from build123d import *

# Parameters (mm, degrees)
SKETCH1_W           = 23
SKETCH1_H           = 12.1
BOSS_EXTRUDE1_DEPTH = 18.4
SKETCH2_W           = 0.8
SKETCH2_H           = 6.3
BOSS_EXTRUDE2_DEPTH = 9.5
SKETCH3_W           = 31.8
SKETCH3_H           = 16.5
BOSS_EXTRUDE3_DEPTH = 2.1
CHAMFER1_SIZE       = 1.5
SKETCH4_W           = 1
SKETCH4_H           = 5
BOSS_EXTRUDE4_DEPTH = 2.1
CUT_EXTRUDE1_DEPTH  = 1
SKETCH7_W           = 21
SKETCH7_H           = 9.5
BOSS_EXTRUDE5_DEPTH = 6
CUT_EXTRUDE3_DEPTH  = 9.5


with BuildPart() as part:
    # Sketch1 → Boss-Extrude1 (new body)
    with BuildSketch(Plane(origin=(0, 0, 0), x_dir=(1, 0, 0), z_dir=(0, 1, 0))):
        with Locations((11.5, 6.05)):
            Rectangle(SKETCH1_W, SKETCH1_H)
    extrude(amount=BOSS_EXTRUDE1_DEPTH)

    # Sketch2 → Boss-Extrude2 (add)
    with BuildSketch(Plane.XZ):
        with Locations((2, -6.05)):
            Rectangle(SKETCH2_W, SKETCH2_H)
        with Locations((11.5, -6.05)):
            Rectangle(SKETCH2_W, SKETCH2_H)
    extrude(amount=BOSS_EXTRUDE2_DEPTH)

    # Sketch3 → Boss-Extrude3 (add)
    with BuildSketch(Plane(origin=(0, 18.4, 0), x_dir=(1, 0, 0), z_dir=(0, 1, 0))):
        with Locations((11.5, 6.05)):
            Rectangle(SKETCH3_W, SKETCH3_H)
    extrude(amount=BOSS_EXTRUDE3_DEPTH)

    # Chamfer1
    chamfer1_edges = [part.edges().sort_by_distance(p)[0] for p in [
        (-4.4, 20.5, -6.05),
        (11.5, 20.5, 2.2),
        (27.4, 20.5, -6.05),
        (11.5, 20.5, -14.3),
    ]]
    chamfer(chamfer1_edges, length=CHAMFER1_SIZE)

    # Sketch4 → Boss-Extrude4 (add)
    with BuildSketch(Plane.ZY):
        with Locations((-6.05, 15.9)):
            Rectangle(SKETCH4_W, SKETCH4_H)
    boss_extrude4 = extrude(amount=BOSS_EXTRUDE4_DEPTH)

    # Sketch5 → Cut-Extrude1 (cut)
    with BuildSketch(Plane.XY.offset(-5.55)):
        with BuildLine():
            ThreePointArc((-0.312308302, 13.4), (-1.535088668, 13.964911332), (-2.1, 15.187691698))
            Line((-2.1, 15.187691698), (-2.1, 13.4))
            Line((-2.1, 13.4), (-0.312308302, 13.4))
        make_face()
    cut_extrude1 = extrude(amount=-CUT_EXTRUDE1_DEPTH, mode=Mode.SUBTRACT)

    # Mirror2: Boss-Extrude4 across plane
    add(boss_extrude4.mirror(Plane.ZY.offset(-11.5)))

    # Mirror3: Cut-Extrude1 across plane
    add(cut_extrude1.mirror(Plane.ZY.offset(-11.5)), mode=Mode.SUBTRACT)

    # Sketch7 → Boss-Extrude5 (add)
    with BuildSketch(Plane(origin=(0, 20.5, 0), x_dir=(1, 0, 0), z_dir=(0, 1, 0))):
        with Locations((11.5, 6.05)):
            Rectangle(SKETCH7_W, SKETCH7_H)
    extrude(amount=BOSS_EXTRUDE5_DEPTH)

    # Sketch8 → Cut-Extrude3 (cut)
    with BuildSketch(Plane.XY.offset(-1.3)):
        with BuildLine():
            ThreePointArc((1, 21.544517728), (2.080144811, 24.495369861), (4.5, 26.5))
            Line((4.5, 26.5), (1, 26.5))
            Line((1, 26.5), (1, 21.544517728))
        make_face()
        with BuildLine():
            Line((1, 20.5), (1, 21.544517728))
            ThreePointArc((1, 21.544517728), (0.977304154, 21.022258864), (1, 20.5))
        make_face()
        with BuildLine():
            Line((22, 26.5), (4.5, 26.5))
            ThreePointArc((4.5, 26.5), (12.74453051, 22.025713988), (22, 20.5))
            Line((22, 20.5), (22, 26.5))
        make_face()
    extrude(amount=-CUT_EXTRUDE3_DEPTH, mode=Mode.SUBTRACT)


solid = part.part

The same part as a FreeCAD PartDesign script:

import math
import FreeCAD as App
import Part
import Sketcher
from FreeCAD import Vector
Q = App.Units.Quantity


def edges_at(feature, points):
    """Names of the edges that pass closest to the given points."""
    edges = feature.Shape.Edges
    near = lambda p: min(range(len(edges)), key=lambda i: edges[i].distToShape(Part.Vertex(*p))[0])
    return sorted({f"Edge{near(p) + 1}" for p in points})

doc = App.newDocument("Part")
body = doc.addObject("PartDesign::Body", "Body")

# Sketch on XZ plane
sketch1 = body.newObject("Sketcher::SketchObject", "Sketch")
sketch1.AttachmentSupport = (doc.getObject("XZ_Plane"), [""])
sketch1.MapMode = "FlatFace"
sketch1.addGeometry([
    Part.LineSegment(Vector(0, -12, 0), Vector(0, 0, 0)),
    Part.LineSegment(Vector(0, 0, 0), Vector(23, 0, 0)),
    Part.LineSegment(Vector(23, 0, 0), Vector(23, -12, 0)),
    Part.LineSegment(Vector(23, -12, 0), Vector(0, -12, 0)),
], False)
sketch1.addConstraint([
    Sketcher.Constraint("Coincident", 0, 2, 1, 1),
    Sketcher.Constraint("Coincident", 1, 2, 2, 1),
    Sketcher.Constraint("Coincident", 2, 2, 3, 1),
    Sketcher.Constraint("Coincident", 3, 2, 0, 1),
    Sketcher.Constraint("Vertical", 0),
    Sketcher.Constraint("Horizontal", 1),
    Sketcher.Constraint("Vertical", 2),
    Sketcher.Constraint("Horizontal", 3),
    Sketcher.Constraint("Coincident", 0, 2, -1, 1),
    Sketcher.Constraint("DistanceX", 1, 1, 1, 2, Q("23 mm")),
    Sketcher.Constraint("DistanceY", 0, 1, 0, 2, Q("12.1 mm")),
])
pad1 = body.newObject("PartDesign::Pad", "Pad")
pad1.Profile = sketch1
pad1.Length = 18.4
pad1.Reversed = True

# Sketch on XZ plane
sketch2 = body.newObject("Sketcher::SketchObject", "Sketch001")
sketch2.AttachmentSupport = (doc.getObject("XZ_Plane"), [""])
sketch2.MapMode = "FlatFace"
sketch2.addGeometry([
    Part.LineSegment(Vector(1.6, -2.9, 0), Vector(1.6, -9.2, 0)),  # 0
    Part.LineSegment(Vector(1.6, -9.2, 0), Vector(2.4, -9.2, 0)),  # 1
    Part.LineSegment(Vector(2.4, -9.2, 0), Vector(2.4, -2.9, 0)),  # 2
    Part.LineSegment(Vector(2.4, -2.9, 0), Vector(1.6, -2.9, 0)),  # 3
    Part.LineSegment(Vector(11.1, -2.9, 0), Vector(11.1, -9.2, 0)),  # 4
    Part.LineSegment(Vector(11.1, -9.2, 0), Vector(11.9, -9.2, 0)),  # 5
    Part.LineSegment(Vector(11.9, -9.2, 0), Vector(11.9, -2.9, 0)),  # 6
    Part.LineSegment(Vector(11.9, -2.9, 0), Vector(11.1, -2.9, 0)),  # 7
], False)
sketch2.addConstraint([
    Sketcher.Constraint("Coincident", 0, 2, 1, 1),
    Sketcher.Constraint("Coincident", 1, 2, 2, 1),
    Sketcher.Constraint("Coincident", 2, 2, 3, 1),
    Sketcher.Constraint("Coincident", 3, 2, 0, 1),
    Sketcher.Constraint("Coincident", 4, 2, 5, 1),
    Sketcher.Constraint("Coincident", 5, 2, 6, 1),
    Sketcher.Constraint("Coincident", 6, 2, 7, 1),
    Sketcher.Constraint("Coincident", 7, 2, 4, 1),
    Sketcher.Constraint("Vertical", 0),
    Sketcher.Constraint("Horizontal", 1),
    Sketcher.Constraint("Vertical", 2),
    Sketcher.Constraint("Horizontal", 3),
    Sketcher.Constraint("Vertical", 4),
    Sketcher.Constraint("Horizontal", 5),
    Sketcher.Constraint("Vertical", 6),
    Sketcher.Constraint("Horizontal", 7),
    Sketcher.Constraint("Horizontal", 1, 2, 4, 2),
    Sketcher.Constraint("Horizontal", 3, 2, 6, 2),
    Sketcher.Constraint("Equal", 3, 5),
    Sketcher.Constraint("DistanceX", 1, 1, 1, 2, Q("0.8 mm")),
    Sketcher.Constraint("DistanceY", 0, 2, 0, 1, Q("6.3 mm")),
    Sketcher.Constraint("DistanceX", -1, 1, 0, 2, Q("1.6 mm")),
    Sketcher.Constraint("DistanceY", 0, 2, -1, 1, Q("9.2 mm")),
    Sketcher.Constraint("DistanceX", -1, 1, 4, 2, Q("11.1 mm")),
])
pad2 = body.newObject("PartDesign::Pad", "Pad001")
pad2.Profile = sketch2
pad2.Length = 9.5

# Sketch on XZ plane
sketch3 = body.newObject("Sketcher::SketchObject", "Sketch002")
sketch3.AttachmentSupport = (doc.getObject("XZ_Plane"), [""])
sketch3.MapMode = "FlatFace"
sketch3.AttachmentOffset = App.Placement(Vector(0, 0, -18.4), App.Rotation())
sketch3.addGeometry([
    Part.LineSegment(Vector(-4, -14, 0), Vector(-4, 2, 0)),
    Part.LineSegment(Vector(-4, 2, 0), Vector(27, 2, 0)),
    Part.LineSegment(Vector(27, 2, 0), Vector(27, -14, 0)),
    Part.LineSegment(Vector(27, -14, 0), Vector(-4, -14, 0)),
], False)
sketch3.addConstraint([
    Sketcher.Constraint("Coincident", 0, 2, 1, 1),
    Sketcher.Constraint("Coincident", 1, 2, 2, 1),
    Sketcher.Constraint("Coincident", 2, 2, 3, 1),
    Sketcher.Constraint("Coincident", 3, 2, 0, 1),
    Sketcher.Constraint("Vertical", 0),
    Sketcher.Constraint("Horizontal", 1),
    Sketcher.Constraint("Vertical", 2),
    Sketcher.Constraint("Horizontal", 3),
    Sketcher.Constraint("DistanceX", 1, 1, 1, 2, Q("31.8 mm")),
    Sketcher.Constraint("DistanceY", 0, 1, 0, 2, Q("16.5 mm")),
    Sketcher.Constraint("DistanceX", 0, 2, -1, 1, Q("4.4 mm")),
    Sketcher.Constraint("DistanceY", -1, 1, 0, 2, Q("2.2 mm")),
])
pad3 = body.newObject("PartDesign::Pad", "Pad002")
pad3.Profile = sketch3
pad3.Length = 2.1
pad3.Reversed = True
doc.recompute()

chamfer = body.newObject("PartDesign::Chamfer", "Chamfer")
chamfer.Base = (pad3, edges_at(pad3, [
    (-4.4, 20.5, -6.05),
    (11.5, 20.5, 2.2),
    (27.4, 20.5, -6.05),
    (11.5, 20.5, -14.3),
]))
chamfer.Size = 1.5

# Sketch on YZ plane
sketch4 = body.newObject("Sketcher::SketchObject", "Sketch003")
sketch4.AttachmentSupport = (doc.getObject("YZ_Plane"), [""])
sketch4.MapMode = "FlatFace"
sketch4.addGeometry([
    Part.LineSegment(Vector(18.4, -6.5, 0), Vector(13.4, -6.5, 0)),
    Part.LineSegment(Vector(13.4, -6.5, 0), Vector(13.4, -5.5, 0)),
    Part.LineSegment(Vector(13.4, -5.5, 0), Vector(18.4, -5.5, 0)),
    Part.LineSegment(Vector(18.4, -5.5, 0), Vector(18.4, -6.5, 0)),
], False)
sketch4.addConstraint([
    Sketcher.Constraint("Coincident", 0, 2, 1, 1),
    Sketcher.Constraint("Coincident", 1, 2, 2, 1),
    Sketcher.Constraint("Coincident", 2, 2, 3, 1),
    Sketcher.Constraint("Coincident", 3, 2, 0, 1),
    Sketcher.Constraint("Horizontal", 0),
    Sketcher.Constraint("Vertical", 1),
    Sketcher.Constraint("Horizontal", 2),
    Sketcher.Constraint("Vertical", 3),
    Sketcher.Constraint("DistanceX", 0, 2, 0, 1, Q("5 mm")),
    Sketcher.Constraint("DistanceY", 1, 1, 1, 2, Q("1 mm")),
    Sketcher.Constraint("DistanceX", -1, 1, 0, 2, Q("13.4 mm")),
    Sketcher.Constraint("DistanceY", 0, 2, -1, 1, Q("6.55 mm")),
])
pad4 = body.newObject("PartDesign::Pad", "Pad003")
pad4.Profile = sketch4
pad4.Length = 2.1
pad4.Reversed = True

# Sketch on XY plane
sketch5 = body.newObject("Sketcher::SketchObject", "Sketch004")
sketch5.AttachmentSupport = (doc.getObject("XY_Plane"), [""])
sketch5.MapMode = "FlatFace"
sketch5.AttachmentOffset = App.Placement(Vector(0, 0, -5.55), App.Rotation())
sketch5.addGeometry([
    Part.ArcOfCircle(Part.Circle(Vector(-0.2, 15.3, 0), Vector(0, 0, 1), 2), math.radians(-175), math.radians(-95)),
    Part.LineSegment(Vector(-2.1, 15.2, 0), Vector(-2.1, 13.4, 0)),
    Part.LineSegment(Vector(-2.1, 13.4, 0), Vector(-0.3, 13.4, 0)),
], False)
sketch5.addConstraint([
    Sketcher.Constraint("Coincident", 0, 1, 1, 1),
    Sketcher.Constraint("Coincident", 1, 2, 2, 1),
    Sketcher.Constraint("Coincident", 2, 2, 0, 2),
    Sketcher.Constraint("Vertical", 1),
    Sketcher.Constraint("Horizontal", 2),
    Sketcher.Constraint("Equal", 2, 1),
    Sketcher.Constraint("DistanceX", 0, 1, -1, 1, Q("2.1 mm")),
    Sketcher.Constraint("DistanceY", -1, 1, 1, 2, Q("13.4 mm")),
    Sketcher.Constraint("Radius", 0, Q("1.950108 mm")),
    Sketcher.Constraint("DistanceX", 2, 1, 2, 2, Q("1.787692 mm")),
])
pocket1 = body.newObject("PartDesign::Pocket", "Pocket")
pocket1.Profile = sketch5
pocket1.Length = 1
doc.recompute()

datumplane = body.newObject("PartDesign::Plane", "DatumPlane")
datumplane.AttachmentSupport = (doc.getObject("YZ_Plane"), [""])
datumplane.MapMode = "FlatFace"
datumplane.AttachmentOffset = App.Placement(Vector(0, 0, 11.5), App.Rotation())
mirrored = body.newObject("PartDesign::Mirrored", "Mirrored")
mirrored.Originals = [pad4]
mirrored.MirrorPlane = (datumplane, [""])
body.Tip = mirrored
doc.recompute()

datumplane2 = body.newObject("PartDesign::Plane", "DatumPlane001")
datumplane2.AttachmentSupport = (doc.getObject("YZ_Plane"), [""])
datumplane2.MapMode = "FlatFace"
datumplane2.AttachmentOffset = App.Placement(Vector(0, 0, 11.5), App.Rotation())
mirrored2 = body.newObject("PartDesign::Mirrored", "Mirrored001")
mirrored2.Originals = [pocket1]
mirrored2.MirrorPlane = (datumplane2, [""])
body.Tip = mirrored2

# Sketch on XZ plane
sketch6 = body.newObject("Sketcher::SketchObject", "Sketch005")
sketch6.AttachmentSupport = (doc.getObject("XZ_Plane"), [""])
sketch6.MapMode = "FlatFace"
sketch6.AttachmentOffset = App.Placement(Vector(0, 0, -20.5), App.Rotation())
sketch6.addGeometry([
    Part.LineSegment(Vector(1, -11, 0), Vector(1, -1, 0)),
    Part.LineSegment(Vector(1, -1, 0), Vector(22, -1, 0)),
    Part.LineSegment(Vector(22, -1, 0), Vector(22, -11, 0)),
    Part.LineSegment(Vector(22, -11, 0), Vector(1, -11, 0)),
], False)
sketch6.addConstraint([
    Sketcher.Constraint("Coincident", 0, 2, 1, 1),
    Sketcher.Constraint("Coincident", 1, 2, 2, 1),
    Sketcher.Constraint("Coincident", 2, 2, 3, 1),
    Sketcher.Constraint("Coincident", 3, 2, 0, 1),
    Sketcher.Constraint("Vertical", 0),
    Sketcher.Constraint("Horizontal", 1),
    Sketcher.Constraint("Vertical", 2),
    Sketcher.Constraint("Horizontal", 3),
    Sketcher.Constraint("DistanceX", 1, 1, 1, 2, Q("21 mm")),
    Sketcher.Constraint("DistanceY", 0, 1, 0, 2, Q("9.5 mm")),
    Sketcher.Constraint("DistanceX", -1, 1, 0, 2, Q("1 mm")),
    Sketcher.Constraint("DistanceY", 0, 2, -1, 1, Q("1.3 mm")),
])
pad5 = body.newObject("PartDesign::Pad", "Pad004")
pad5.Profile = sketch6
pad5.Length = 6
pad5.Reversed = True

# Sketch on XY plane
sketch7 = body.newObject("Sketcher::SketchObject", "Sketch006")
sketch7.AttachmentSupport = (doc.getObject("XY_Plane"), [""])
sketch7.MapMode = "FlatFace"
sketch7.AttachmentOffset = App.Placement(Vector(0, 0, -1.3), App.Rotation())
sketch7.addGeometry([
    Part.ArcOfCircle(Part.Circle(Vector(7, 21, 0), Vector(0, 0, 1), 6), math.radians(115), math.radians(175)),  # 0
    Part.LineSegment(Vector(4.5, 26.5, 0), Vector(1, 26.5, 0)),  # 1
    Part.LineSegment(Vector(1, 26.5, 0), Vector(1, 21.5, 0)),  # 2
    Part.LineSegment(Vector(1, 20.5, 0), Vector(1, 21.5, 0)),  # 3
    Part.ArcOfCircle(Part.Circle(Vector(7, 21, 0), Vector(0, 0, 1), 6), math.radians(175.02), math.radians(184.98)),  # 4
    Part.LineSegment(Vector(22, 26.5, 0), Vector(4.5, 26.5, 0)),  # 5
    Part.ArcOfCircle(Part.Circle(Vector(21.9, 48.7, 0), Vector(0, 0, 1), 28.2), math.radians(-128), math.radians(-90)),  # 6
    Part.LineSegment(Vector(22, 20.5, 0), Vector(22, 26.5, 0)),  # 7
], False)
sketch7.addConstraint([
    Sketcher.Constraint("Coincident", 0, 1, 1, 1),
    Sketcher.Constraint("Coincident", 1, 2, 2, 1),
    Sketcher.Constraint("Coincident", 2, 2, 0, 2),
    Sketcher.Constraint("Coincident", 3, 1, 4, 2),
    Sketcher.Constraint("Coincident", 4, 1, 3, 2),
    Sketcher.Constraint("Coincident", 5, 2, 6, 1),
    Sketcher.Constraint("Coincident", 6, 2, 7, 1),
    Sketcher.Constraint("Coincident", 7, 2, 5, 1),
    Sketcher.Constraint("Horizontal", 1),
    Sketcher.Constraint("Vertical", 2),
    Sketcher.Constraint("Vertical", 3),
    Sketcher.Constraint("Horizontal", 5),
    Sketcher.Constraint("Vertical", 7),
    Sketcher.Constraint("Coincident", 4, 3, 0, 3),
    Sketcher.Constraint("Coincident", 4, 1, 2, 2),
    Sketcher.Constraint("Coincident", 5, 2, 0, 1),
    Sketcher.Constraint("Horizontal", 3, 1, 6, 2),
    Sketcher.Constraint("DistanceY", 7, 1, 7, 2, Q("6 mm")),
    Sketcher.Constraint("DistanceX", 1, 2, 1, 1, Q("3.5 mm")),
    Sketcher.Constraint("DistanceX", 5, 2, 5, 1, Q("17.5 mm")),
    Sketcher.Constraint("DistanceX", -1, 1, 1, 2, Q("1 mm")),
    Sketcher.Constraint("DistanceY", -1, 1, 0, 1, Q("26.5 mm")),
    Sketcher.Constraint("Radius", 4, Q("6.020252 mm")),
    Sketcher.Constraint("Radius", 6, Q("28.228993 mm")),
])
pocket2 = body.newObject("PartDesign::Pocket", "Pocket001")
pocket2.Profile = sketch7
pocket2.Length = 9.5

doc.recompute()
